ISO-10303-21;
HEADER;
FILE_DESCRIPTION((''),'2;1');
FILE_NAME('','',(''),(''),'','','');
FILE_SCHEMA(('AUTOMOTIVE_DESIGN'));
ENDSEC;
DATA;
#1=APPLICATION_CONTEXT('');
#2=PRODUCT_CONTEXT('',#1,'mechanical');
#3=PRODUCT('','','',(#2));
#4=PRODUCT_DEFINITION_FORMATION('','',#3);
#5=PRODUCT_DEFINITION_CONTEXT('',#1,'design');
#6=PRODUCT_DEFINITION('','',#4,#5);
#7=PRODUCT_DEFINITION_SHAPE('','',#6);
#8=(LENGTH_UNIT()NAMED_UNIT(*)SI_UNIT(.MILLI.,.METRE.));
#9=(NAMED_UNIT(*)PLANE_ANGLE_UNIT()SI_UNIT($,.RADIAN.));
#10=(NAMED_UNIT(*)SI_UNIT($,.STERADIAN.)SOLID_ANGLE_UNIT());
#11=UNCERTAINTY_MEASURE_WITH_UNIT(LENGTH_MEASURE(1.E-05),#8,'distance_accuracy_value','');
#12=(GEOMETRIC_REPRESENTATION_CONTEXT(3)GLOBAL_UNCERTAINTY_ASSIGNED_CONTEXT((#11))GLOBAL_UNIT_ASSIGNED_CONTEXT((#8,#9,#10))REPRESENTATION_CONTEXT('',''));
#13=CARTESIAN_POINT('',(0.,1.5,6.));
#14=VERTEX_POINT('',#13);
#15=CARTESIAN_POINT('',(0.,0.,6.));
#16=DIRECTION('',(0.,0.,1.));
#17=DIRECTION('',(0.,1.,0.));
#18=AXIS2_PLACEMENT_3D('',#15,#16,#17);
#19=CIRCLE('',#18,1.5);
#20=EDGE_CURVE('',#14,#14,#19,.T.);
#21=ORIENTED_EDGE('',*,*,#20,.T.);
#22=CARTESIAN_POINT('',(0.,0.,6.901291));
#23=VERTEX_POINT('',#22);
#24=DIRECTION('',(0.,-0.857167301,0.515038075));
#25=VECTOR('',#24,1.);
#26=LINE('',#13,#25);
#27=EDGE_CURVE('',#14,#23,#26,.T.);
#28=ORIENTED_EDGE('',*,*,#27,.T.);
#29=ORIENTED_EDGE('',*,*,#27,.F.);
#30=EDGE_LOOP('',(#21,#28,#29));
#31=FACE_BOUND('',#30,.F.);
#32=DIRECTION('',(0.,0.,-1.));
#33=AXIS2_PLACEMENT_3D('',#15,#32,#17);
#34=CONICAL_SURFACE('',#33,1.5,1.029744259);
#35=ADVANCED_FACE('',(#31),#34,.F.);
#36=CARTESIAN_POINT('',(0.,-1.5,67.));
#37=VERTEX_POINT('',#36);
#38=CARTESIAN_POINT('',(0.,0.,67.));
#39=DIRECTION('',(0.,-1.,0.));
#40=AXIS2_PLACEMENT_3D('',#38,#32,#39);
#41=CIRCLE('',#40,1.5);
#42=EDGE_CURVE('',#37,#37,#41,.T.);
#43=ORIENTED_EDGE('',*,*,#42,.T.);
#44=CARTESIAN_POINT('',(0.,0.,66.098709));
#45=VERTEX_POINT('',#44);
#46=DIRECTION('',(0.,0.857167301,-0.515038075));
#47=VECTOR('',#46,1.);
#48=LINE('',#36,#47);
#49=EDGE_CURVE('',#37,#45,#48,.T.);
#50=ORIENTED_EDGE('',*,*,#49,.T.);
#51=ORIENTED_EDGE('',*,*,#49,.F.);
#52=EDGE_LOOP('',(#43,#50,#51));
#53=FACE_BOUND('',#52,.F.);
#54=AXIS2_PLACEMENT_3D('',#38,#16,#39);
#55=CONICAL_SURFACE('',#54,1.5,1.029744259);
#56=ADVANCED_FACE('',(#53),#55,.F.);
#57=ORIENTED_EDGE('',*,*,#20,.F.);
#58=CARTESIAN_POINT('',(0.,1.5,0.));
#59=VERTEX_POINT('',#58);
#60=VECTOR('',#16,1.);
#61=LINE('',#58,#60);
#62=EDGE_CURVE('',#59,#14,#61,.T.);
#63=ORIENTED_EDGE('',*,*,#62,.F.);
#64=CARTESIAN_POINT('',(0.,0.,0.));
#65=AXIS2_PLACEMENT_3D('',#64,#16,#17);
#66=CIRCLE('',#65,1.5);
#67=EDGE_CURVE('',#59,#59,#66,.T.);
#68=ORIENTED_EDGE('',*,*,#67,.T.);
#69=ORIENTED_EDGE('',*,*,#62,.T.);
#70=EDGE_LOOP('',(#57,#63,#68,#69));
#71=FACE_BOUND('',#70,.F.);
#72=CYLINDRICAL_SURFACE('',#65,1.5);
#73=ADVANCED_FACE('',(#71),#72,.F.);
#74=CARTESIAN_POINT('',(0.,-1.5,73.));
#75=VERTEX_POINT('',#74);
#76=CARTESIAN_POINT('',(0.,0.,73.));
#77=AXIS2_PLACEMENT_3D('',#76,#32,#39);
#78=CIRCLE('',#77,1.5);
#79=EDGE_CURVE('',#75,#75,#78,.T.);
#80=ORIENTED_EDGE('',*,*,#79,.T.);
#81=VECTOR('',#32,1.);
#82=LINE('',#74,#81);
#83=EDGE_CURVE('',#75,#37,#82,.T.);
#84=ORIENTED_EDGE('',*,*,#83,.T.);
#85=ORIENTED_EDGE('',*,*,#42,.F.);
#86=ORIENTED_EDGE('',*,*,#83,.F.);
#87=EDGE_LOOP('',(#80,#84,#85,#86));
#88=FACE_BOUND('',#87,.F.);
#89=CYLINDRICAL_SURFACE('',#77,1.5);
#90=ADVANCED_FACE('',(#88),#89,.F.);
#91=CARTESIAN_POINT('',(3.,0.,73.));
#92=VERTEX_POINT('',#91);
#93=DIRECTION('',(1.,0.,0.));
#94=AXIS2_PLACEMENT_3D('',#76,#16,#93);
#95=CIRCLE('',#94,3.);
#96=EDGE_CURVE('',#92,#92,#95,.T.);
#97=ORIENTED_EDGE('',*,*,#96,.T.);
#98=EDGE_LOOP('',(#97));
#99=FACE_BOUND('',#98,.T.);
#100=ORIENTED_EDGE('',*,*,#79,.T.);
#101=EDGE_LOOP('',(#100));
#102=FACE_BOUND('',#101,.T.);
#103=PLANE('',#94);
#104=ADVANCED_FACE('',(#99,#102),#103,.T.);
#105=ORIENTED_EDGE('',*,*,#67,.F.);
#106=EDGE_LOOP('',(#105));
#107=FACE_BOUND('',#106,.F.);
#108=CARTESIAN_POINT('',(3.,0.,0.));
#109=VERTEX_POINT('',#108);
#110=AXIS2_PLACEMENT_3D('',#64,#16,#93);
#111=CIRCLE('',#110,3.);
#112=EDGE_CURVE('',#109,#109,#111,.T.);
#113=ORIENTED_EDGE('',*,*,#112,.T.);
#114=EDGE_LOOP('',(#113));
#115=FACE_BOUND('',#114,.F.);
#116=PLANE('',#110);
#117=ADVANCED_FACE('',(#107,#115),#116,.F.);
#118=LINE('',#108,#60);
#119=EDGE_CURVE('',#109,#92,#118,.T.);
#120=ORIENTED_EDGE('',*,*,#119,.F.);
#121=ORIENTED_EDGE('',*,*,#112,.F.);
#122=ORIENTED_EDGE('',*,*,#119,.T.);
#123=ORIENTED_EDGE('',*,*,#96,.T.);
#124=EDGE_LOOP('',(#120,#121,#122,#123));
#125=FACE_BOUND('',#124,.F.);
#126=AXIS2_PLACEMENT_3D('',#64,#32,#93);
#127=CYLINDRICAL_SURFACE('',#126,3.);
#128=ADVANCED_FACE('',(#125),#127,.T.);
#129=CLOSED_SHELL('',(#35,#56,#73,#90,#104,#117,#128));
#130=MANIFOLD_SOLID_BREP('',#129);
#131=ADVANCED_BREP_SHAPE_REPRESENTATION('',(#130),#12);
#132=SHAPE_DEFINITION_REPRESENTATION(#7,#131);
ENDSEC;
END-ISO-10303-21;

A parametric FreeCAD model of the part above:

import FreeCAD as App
import Part
import Sketcher

V = App.Vector

doc = App.newDocument("Part")
body = doc.addObject("PartDesign::Body", "Body")

sketch1 = body.newObject("Sketcher::SketchObject", "Sketch")
sketch1.AttachmentSupport = (doc.getObject("XY_Plane"), [""])
sketch1.MapMode = "FlatFace"
sketch1.addGeometry(Part.Circle(V(0, 0, 0), V(0, 0, 1), 3), False)
sketch1.addGeometry(Part.Circle(V(0, 0, 0), V(0, 0, 1), 1.5), False)
sketch1.addConstraint(Sketcher.Constraint("Coincident", 0, 3, -1, 1))
sketch1.addConstraint(Sketcher.Constraint("Coincident", 1, 3, -1, 1))
sketch1.addConstraint(Sketcher.Constraint("Diameter", 0, 6.0))
sketch1.addConstraint(Sketcher.Constraint("Diameter", 1, 3.001))
pad1 = body.newObject("PartDesign::Pad", "Pad")
pad1.Profile = sketch1
pad1.Length = 73

sketch2 = body.newObject("Sketcher::SketchObject", "Sketch001")
sketch2.AttachmentSupport = (doc.getObject("XY_Plane"), [""])
sketch2.MapMode = "FlatFace"
sketch2.AttachmentOffset = App.Placement(V(0, 0, 73), App.Rotation())
sketch2.addGeometry(Part.Circle(V(0, 0, 0), V(0, 0, 1), 1.5), False)
sketch2.addConstraint(Sketcher.Constraint("Coincident", 0, 3, -1, 1))
sketch2.addConstraint(Sketcher.Constraint("Diameter", 0, 3.001))
pad2 = body.newObject("PartDesign::Pad", "Pad001")
pad2.Profile = sketch2
pad2.Length = 73
pad2.Reversed = True

sketch3 = body.newObject("Sketcher::SketchObject", "Sketch002")
sketch3.AttachmentSupport = (doc.getObject("XY_Plane"), [""])
sketch3.MapMode = "FlatFace"
sketch3.AttachmentOffset = App.Placement(V(0, 0, 73), App.Rotation())
sketch3.addGeometry(Part.Circle(V(0, 0, 0), V(0, 0, 1), 1.5), False)
sketch3.addConstraint(Sketcher.Constraint("Coincident", 0, 3, -1, 1))
sketch3.addConstraint(Sketcher.Constraint("Diameter", 0, 3.0))
doc.recompute()
hole = body.newObject("PartDesign::Hole", "Hole")
hole.Profile = sketch3
hole.ThreadType = "None"
hole.Diameter = 3
hole.DepthType = "Dimension"
hole.Depth = 6
hole.DrillPoint = "Angled"
hole.DrillPointAngle = 118

sketch4 = body.newObject("Sketcher::SketchObject", "Sketch003")
sketch4.AttachmentSupport = (doc.getObject("XY_Plane"), [""])
sketch4.MapMode = "FlatFace"
sketch4.addGeometry(Part.Circle(V(0, 0, 0), V(0, 0, 1), 1.5), False)
sketch4.addConstraint(Sketcher.Constraint("Coincident", 0, 3, -1, 1))
sketch4.addConstraint(Sketcher.Constraint("Diameter", 0, 3.0))
doc.recompute()
hole2 = body.newObject("PartDesign::Hole", "Hole001")
hole2.Profile = sketch4
hole2.ThreadType = "None"
hole2.Diameter = 3
hole2.DepthType = "Dimension"
hole2.Depth = 6
hole2.DrillPoint = "Angled"
hole2.DrillPointAngle = 118
hole2.Reversed = True

doc.recompute()
